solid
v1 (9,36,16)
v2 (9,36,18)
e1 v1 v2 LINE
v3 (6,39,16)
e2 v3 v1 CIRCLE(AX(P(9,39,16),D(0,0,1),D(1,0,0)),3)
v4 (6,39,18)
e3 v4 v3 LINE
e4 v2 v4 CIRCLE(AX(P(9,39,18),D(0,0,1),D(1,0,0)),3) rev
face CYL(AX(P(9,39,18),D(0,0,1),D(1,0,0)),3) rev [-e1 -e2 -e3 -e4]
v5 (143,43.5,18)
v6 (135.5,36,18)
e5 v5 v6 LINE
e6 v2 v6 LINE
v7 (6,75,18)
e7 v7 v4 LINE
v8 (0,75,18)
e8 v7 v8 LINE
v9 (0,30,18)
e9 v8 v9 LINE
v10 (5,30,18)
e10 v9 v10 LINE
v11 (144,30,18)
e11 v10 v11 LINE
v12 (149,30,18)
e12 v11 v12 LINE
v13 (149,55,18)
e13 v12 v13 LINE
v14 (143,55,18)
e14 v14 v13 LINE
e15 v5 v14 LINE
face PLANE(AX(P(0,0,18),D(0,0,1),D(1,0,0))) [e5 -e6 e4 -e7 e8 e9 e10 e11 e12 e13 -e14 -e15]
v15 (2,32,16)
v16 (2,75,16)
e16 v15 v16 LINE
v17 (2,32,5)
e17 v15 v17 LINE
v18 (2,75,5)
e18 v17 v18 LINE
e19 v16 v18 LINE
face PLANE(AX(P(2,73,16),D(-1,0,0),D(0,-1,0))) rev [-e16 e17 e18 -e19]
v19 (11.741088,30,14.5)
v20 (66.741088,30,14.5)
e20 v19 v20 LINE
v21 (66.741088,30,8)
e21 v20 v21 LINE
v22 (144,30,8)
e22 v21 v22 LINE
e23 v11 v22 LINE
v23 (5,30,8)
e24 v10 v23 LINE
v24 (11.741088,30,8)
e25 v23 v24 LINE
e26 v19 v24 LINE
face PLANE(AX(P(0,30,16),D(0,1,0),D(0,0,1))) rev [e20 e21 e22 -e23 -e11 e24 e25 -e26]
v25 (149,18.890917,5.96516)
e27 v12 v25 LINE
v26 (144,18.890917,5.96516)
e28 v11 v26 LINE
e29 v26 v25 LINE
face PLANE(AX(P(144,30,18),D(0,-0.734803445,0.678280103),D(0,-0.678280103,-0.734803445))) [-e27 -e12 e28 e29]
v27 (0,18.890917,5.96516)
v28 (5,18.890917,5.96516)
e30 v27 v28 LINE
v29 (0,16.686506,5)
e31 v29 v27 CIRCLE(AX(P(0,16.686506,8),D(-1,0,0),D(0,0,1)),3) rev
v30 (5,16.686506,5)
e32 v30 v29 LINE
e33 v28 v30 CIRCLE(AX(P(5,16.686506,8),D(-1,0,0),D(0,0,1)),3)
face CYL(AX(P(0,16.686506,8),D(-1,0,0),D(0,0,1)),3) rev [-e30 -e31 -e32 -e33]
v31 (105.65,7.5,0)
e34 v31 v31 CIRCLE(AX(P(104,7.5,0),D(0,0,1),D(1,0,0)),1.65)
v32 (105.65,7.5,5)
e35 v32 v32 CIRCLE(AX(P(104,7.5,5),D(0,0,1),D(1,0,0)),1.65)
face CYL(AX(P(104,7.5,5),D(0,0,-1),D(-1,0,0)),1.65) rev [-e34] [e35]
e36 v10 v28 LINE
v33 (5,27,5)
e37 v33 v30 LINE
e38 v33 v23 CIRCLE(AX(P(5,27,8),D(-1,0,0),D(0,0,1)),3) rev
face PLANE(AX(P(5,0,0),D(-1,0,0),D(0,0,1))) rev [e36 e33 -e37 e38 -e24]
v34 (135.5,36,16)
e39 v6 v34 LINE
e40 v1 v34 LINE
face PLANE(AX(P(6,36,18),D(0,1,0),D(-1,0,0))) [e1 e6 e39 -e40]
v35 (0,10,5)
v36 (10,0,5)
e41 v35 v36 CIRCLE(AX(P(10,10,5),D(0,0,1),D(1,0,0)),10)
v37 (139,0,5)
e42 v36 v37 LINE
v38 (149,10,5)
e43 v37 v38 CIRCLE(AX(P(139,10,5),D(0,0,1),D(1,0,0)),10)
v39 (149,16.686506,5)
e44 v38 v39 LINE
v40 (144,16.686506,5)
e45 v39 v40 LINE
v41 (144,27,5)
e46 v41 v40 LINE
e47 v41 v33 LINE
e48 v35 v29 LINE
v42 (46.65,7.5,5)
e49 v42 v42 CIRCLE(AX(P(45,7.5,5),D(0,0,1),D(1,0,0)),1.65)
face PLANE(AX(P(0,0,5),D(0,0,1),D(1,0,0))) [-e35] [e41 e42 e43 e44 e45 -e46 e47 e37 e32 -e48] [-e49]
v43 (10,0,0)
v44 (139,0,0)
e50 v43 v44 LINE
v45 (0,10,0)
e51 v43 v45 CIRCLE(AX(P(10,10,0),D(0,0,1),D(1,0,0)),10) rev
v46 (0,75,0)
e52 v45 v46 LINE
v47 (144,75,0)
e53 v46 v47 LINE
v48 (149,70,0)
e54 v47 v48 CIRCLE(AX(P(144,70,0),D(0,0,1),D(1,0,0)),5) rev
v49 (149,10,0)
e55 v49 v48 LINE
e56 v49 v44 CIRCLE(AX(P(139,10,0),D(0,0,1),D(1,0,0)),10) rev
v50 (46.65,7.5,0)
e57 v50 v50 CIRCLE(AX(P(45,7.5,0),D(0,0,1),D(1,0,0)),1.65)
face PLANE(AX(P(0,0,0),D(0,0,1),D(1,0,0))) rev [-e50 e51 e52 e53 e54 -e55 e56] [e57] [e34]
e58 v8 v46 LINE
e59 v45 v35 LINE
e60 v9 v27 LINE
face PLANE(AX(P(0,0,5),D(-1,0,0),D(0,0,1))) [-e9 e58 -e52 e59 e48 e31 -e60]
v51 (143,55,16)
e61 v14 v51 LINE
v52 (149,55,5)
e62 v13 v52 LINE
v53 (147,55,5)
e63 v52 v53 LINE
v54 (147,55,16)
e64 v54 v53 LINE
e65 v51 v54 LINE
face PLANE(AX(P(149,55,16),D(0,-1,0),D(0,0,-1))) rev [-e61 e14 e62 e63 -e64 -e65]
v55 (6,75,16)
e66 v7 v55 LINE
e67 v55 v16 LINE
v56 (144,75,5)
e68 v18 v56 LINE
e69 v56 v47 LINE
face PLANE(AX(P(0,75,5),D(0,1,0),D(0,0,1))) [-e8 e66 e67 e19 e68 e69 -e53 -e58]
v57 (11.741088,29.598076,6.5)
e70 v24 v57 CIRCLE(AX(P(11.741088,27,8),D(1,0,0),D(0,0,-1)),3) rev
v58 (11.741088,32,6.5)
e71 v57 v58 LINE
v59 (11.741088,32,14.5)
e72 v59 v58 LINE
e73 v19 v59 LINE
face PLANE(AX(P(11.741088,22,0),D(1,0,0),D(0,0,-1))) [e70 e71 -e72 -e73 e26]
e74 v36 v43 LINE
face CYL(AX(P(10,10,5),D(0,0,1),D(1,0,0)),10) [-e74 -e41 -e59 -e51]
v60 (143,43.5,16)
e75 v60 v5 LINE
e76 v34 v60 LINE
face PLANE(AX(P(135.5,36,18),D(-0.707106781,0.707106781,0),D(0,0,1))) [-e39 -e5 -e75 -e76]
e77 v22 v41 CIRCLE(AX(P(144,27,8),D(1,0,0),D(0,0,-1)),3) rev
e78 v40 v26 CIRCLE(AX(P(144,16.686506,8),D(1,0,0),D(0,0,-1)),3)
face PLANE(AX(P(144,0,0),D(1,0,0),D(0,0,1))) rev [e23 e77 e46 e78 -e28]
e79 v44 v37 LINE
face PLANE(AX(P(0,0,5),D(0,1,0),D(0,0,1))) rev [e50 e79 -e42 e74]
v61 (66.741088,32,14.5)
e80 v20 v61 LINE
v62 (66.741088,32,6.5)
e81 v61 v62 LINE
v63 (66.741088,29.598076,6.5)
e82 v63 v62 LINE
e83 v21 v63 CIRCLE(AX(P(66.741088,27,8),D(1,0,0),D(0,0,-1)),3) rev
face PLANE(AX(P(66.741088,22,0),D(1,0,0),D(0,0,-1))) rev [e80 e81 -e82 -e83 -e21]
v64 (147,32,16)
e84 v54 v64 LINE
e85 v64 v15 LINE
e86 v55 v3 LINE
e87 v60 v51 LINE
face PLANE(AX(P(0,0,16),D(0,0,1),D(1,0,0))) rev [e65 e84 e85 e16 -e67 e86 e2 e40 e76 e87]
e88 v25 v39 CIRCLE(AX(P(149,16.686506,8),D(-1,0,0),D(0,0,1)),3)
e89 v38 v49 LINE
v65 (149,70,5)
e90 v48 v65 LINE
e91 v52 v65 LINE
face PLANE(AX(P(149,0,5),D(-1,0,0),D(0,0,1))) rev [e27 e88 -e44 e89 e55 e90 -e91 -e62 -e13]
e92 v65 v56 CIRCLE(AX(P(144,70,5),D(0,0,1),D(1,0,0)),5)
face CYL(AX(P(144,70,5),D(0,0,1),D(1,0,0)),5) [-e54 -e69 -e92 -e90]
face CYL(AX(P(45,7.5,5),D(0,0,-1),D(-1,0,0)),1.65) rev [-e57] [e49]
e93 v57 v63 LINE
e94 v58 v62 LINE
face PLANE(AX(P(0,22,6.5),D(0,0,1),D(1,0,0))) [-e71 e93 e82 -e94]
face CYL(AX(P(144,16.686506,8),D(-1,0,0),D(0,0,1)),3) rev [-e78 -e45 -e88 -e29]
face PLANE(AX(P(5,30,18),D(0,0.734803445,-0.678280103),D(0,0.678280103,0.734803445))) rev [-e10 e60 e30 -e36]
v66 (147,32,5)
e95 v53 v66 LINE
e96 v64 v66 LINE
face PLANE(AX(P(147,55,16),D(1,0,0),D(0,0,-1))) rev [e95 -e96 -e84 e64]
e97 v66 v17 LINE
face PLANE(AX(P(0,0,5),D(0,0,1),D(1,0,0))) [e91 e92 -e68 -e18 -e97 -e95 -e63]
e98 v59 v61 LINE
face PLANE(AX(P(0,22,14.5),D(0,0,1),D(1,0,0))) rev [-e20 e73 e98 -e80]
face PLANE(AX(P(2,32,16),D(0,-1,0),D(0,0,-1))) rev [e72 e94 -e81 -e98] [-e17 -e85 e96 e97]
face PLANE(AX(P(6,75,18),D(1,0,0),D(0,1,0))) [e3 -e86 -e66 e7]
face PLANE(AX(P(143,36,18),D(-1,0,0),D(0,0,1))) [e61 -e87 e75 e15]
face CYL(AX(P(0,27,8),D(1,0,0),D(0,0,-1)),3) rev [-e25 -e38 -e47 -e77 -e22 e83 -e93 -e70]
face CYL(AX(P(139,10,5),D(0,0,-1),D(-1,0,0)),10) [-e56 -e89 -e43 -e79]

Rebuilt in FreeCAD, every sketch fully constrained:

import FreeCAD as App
import Part
import Sketcher
from FreeCAD import Vector
Q = App.Units.Quantity


def edges_at(feature, points):
    """Names of the edges that pass closest to the given points."""
    edges = feature.Shape.Edges
    near = lambda p: min(range(len(edges)), key=lambda i: edges[i].distToShape(Part.Vertex(*p))[0])
    return sorted({f"Edge{near(p) + 1}" for p in points})


def add_polygon(sketch, points):
    """Adds a closed chain of lines whose ends are joined by coincident constraints."""
    first, n = sketch.GeometryCount, len(points)
    for a, b in zip(points, points[1:] + points[:1]):
        sketch.addGeometry(Part.LineSegment(App.Vector(*a, 0), App.Vector(*b, 0)), False)
    for i in range(n):
        sketch.addConstraint(Sketcher.Constraint("Coincident", first + i, 2, first + (i + 1) % n, 1))

doc = App.newDocument("Part")
params = doc.addObject("Spreadsheet::Sheet", "Params")
for row, (alias, value) in enumerate([
    ("sketch1_diameter", "3.3 mm"),
    ("sketch1_width", "149 mm"),
    ("sketch1_height", "75 mm"),
    ("pad1_length", "5 mm"),
    ("fillet_radius", "10 mm"),
    ("sketch2_width", "2 mm"),
    ("sketch2_width2", "149 mm"),
    ("sketch2_height", "45 mm"),
    ("sketch2_height2", "25 mm"),
    ("sketch2_height3", "23 mm"),
    ("pad2_length", "11 mm"),
    ("sketch3_width", "6 mm"),
    ("sketch3_width2", "137 mm"),
    ("sketch3_height", "25 mm"),
    ("sketch3_height2", "19 mm"),
    ("sketch3_height3", "39 mm"),
    ("pad3_length", "2 mm"),
    ("chamfer_size", "7.5 mm"),
    ("sketch4_width", "12 mm"),
    ("sketch4_height", "13 mm"),
    ("pad4_length", "5 mm"),
    ("fillet2_radius", "3 mm"),
    ("sketch5_width", "55 mm"),
    ("sketch5_height", "8 mm"),
    ("pocket1_length", "10 mm"),
    ("fillet3_radius", "3 mm"),
    ("fillet4_radius", "5 mm"),
], start=1):
    params.set(f"A{row}", alias)
    params.set(f"B{row}", "=" + value)
    params.setAlias(f"B{row}", alias)

body = doc.addObject("PartDesign::Body", "Body")

# Sketch on XY plane
sketch1 = body.newObject("Sketcher::SketchObject", "Sketch")
sketch1.AttachmentSupport = (doc.getObject("XY_Plane"), [""])
sketch1.MapMode = "FlatFace"
add_polygon(sketch1, [(0, 75), (0, 0), (149, 0), (149, 75)])  # lines 0-3
sketch1.addGeometry(Part.Circle(Vector(45, 7.5, 0), Vector(0, 0, 1), 1.6), False)  # 4
sketch1.addGeometry(Part.Circle(Vector(104, 7.5, 0), Vector(0, 0, 1), 1.6), False)  # 5
sketch1.addConstraint(Sketcher.Constraint("Vertical", 0))
sketch1.addConstraint(Sketcher.Constraint("Horizontal", 1))
sketch1.addConstraint(Sketcher.Constraint("Vertical", 2))
sketch1.addConstraint(Sketcher.Constraint("Horizontal", 3))
sketch1.addConstraint(Sketcher.Constraint("Coincident", 0, 2, -1, 1))
sketch1.addConstraint(Sketcher.Constraint("Equal", 4, 5))
sketch1.addConstraint(Sketcher.Constraint("Horizontal", 4, 3, 5, 3))
sketch1.addConstraint(Sketcher.Constraint("Diameter", 4, Q("3.3 mm")))
sketch1.addConstraint(Sketcher.Constraint("DistanceX", 1, 1, 1, 2, Q("149 mm")))
sketch1.addConstraint(Sketcher.Constraint("DistanceY", 0, 2, 0, 1, Q("75 mm")))
sketch1.addConstraint(Sketcher.Constraint("DistanceX", -1, 1, 4, 3, Q("45 mm")))
sketch1.addConstraint(Sketcher.Constraint("DistanceX", -1, 1, 5, 3, Q("104 mm")))
sketch1.addConstraint(Sketcher.Constraint("DistanceY", -1, 1, 4, 3, Q("7.5 mm")))
sketch1.setExpression("Constraints[11]", "Params.sketch1_diameter")
sketch1.setExpression("Constraints[12]", "Params.sketch1_width")
sketch1.setExpression("Constraints[13]", "Params.sketch1_height")
pad1 = body.newObject("PartDesign::Pad", "Pad")
pad1.Profile = sketch1
pad1.setExpression("Length", "Params.pad1_length")
doc.recompute()

fillet = body.newObject("PartDesign::Fillet", "Fillet")
fillet.Base = (pad1, edges_at(pad1, [(149, 0, 2.5), (0, 0, 2.5)]))
fillet.setExpression("Radius", "Params.fillet_radius")

# Sketch on XY plane
sketch2 = body.newObject("Sketcher::SketchObject", "Sketch001")
sketch2.AttachmentSupport = (doc.getObject("XY_Plane"), [""])
sketch2.MapMode = "FlatFace"
sketch2.AttachmentOffset = App.Placement(Vector(0, 0, 5), App.Rotation())
add_polygon(sketch2, [(2, 75), (0, 75), (0, 30), (149, 30), (149, 55), (147, 55), (147, 32), (2, 32)])  # lines 0-7
sketch2.addConstraint(Sketcher.Constraint("Horizontal", 0))
sketch2.addConstraint(Sketcher.Constraint("Vertical", 1))
sketch2.addConstraint(Sketcher.Constraint("Horizontal", 2))
sketch2.addConstraint(Sketcher.Constraint("Vertical", 3))
sketch2.addConstraint(Sketcher.Constraint("Horizontal", 4))
sketch2.addConstraint(Sketcher.Constraint("Vertical", 5))
sketch2.addConstraint(Sketcher.Constraint("Horizontal", 6))
sketch2.addConstraint(Sketcher.Constraint("Vertical", 7))
sketch2.addConstraint(Sketcher.Constraint("PointOnObject", 0, 2, -2))
sketch2.addConstraint(Sketcher.Constraint("Equal", 0, 4))
sketch2.addConstraint(Sketcher.Constraint("DistanceX", 0, 2, 0, 1, Q("2 mm")))
sketch2.addConstraint(Sketcher.Constraint("DistanceX", 2, 1, 2, 2, Q("149 mm")))
sketch2.addConstraint(Sketcher.Constraint("DistanceY", 1, 2, 1, 1, Q("45 mm")))
sketch2.addConstraint(Sketcher.Constraint("DistanceY", 3, 1, 3, 2, Q("25 mm")))
sketch2.addConstraint(Sketcher.Constraint("DistanceY", 5, 2, 5, 1, Q("23 mm")))
sketch2.addConstraint(Sketcher.Constraint("DistanceY", -1, 1, 0, 2, Q("75 mm")))
sketch2.setExpression("Constraints[18]", "Params.sketch2_width")
sketch2.setExpression("Constraints[19]", "Params.sketch2_width2")
sketch2.setExpression("Constraints[20]", "Params.sketch2_height")
sketch2.setExpression("Constraints[21]", "Params.sketch2_height2")
sketch2.setExpression("Constraints[22]", "Params.sketch2_height3")
pad2 = body.newObject("PartDesign::Pad", "Pad001")
pad2.Profile = sketch2
pad2.setExpression("Length", "Params.pad2_length")

# Sketch on XY plane
sketch3 = body.newObject("Sketcher::SketchObject", "Sketch002")
sketch3.AttachmentSupport = (doc.getObject("XY_Plane"), [""])
sketch3.MapMode = "FlatFace"
sketch3.AttachmentOffset = App.Placement(Vector(0, 0, 16), App.Rotation())
add_polygon(sketch3, [(149, 30), (149, 55), (143, 55), (143, 36), (6, 36), (6, 75), (0, 75), (0, 30)])  # lines 0-7
sketch3.addConstraint(Sketcher.Constraint("Vertical", 0))
sketch3.addConstraint(Sketcher.Constraint("Horizontal", 1))
sketch3.addConstraint(Sketcher.Constraint("Vertical", 2))
sketch3.addConstraint(Sketcher.Constraint("Horizontal", 3))
sketch3.addConstraint(Sketcher.Constraint("Vertical", 4))
sketch3.addConstraint(Sketcher.Constraint("Horizontal", 5))
sketch3.addConstraint(Sketcher.Constraint("Vertical", 6))
sketch3.addConstraint(Sketcher.Constraint("Horizontal", 7))
sketch3.addConstraint(Sketcher.Constraint("PointOnObject", 5, 2, -2))
sketch3.addConstraint(Sketcher.Constraint("Equal", 1, 5))
sketch3.addConstraint(Sketcher.Constraint("DistanceX", 1, 2, 1, 1, Q("6 mm")))
sketch3.addConstraint(Sketcher.Constraint("DistanceX", 3, 2, 3, 1, Q("137 mm")))
sketch3.addConstraint(Sketcher.Constraint("DistanceY", 0, 1, 0, 2, Q("25 mm")))
sketch3.addConstraint(Sketcher.Constraint("DistanceY", 2, 2, 2, 1, Q("19 mm")))
sketch3.addConstraint(Sketcher.Constraint("DistanceY", 4, 1, 4, 2, Q("39 mm")))
sketch3.addConstraint(Sketcher.Constraint("DistanceY", -1, 1, 0, 2, Q("55 mm")))
sketch3.setExpression("Constraints[18]", "Params.sketch3_width")
sketch3.setExpression("Constraints[19]", "Params.sketch3_width2")
sketch3.setExpression("Constraints[20]", "Params.sketch3_height")
sketch3.setExpression("Constraints[21]", "Params.sketch3_height2")
sketch3.setExpression("Constraints[22]", "Params.sketch3_height3")
pad3 = body.newObject("PartDesign::Pad", "Pad002")
pad3.Profile = sketch3
pad3.setExpression("Length", "Params.pad3_length")
doc.recompute()

chamfer = body.newObject("PartDesign::Chamfer", "Chamfer")
chamfer.Base = (pad3, edges_at(pad3, [(143, 36, 17)]))
chamfer.setExpression("Size", "Params.chamfer_size")

# Sketch on YZ plane
sketch4 = body.newObject("Sketcher::SketchObject", "Sketch003")
sketch4.AttachmentSupport = (doc.getObject("YZ_Plane"), [""])
sketch4.MapMode = "FlatFace"
add_polygon(sketch4, [(18, 5), (30, 18), (30, 5)])  # lines 0-2
sketch4.addConstraint(Sketcher.Constraint("Vertical", 1))
sketch4.addConstraint(Sketcher.Constraint("Horizontal", 2))
sketch4.addConstraint(Sketcher.Constraint("DistanceX", 2, 2, 2, 1, Q("12 mm")))
sketch4.addConstraint(Sketcher.Constraint("DistanceY", 1, 2, 1, 1, Q("13 mm")))
sketch4.addConstraint(Sketcher.Constraint("DistanceX", -1, 1, 0, 2, Q("30 mm")))
sketch4.addConstraint(Sketcher.Constraint("DistanceY", -1, 1, 0, 2, Q("18 mm")))
sketch4.setExpression("Constraints[5]", "Params.sketch4_width")
sketch4.setExpression("Constraints[6]", "Params.sketch4_height")
pad4 = body.newObject("PartDesign::Pad", "Pad003")
pad4.Profile = sketch4
pad4.setExpression("Length", "Params.pad4_length")
doc.recompute()

datumplane = body.newObject("PartDesign::Plane", "DatumPlane")
datumplane.AttachmentSupport = (doc.getObject("YZ_Plane"), [""])
datumplane.MapMode = "FlatFace"
datumplane.AttachmentOffset = App.Placement(Vector(0, 0, 74.5), App.Rotation())
mirrored = body.newObject("PartDesign::Mirrored", "Mirrored")
mirrored.Originals = [pad4]
mirrored.MirrorPlane = (datumplane, [""])
body.Tip = mirrored
doc.recompute()

fillet2 = body.newObject("PartDesign::Fillet", "Fillet001")
fillet2.Base = (mirrored, edges_at(mirrored, [(146.5, 18, 5), (74.5, 30, 5), (2.5, 18, 5)]))
fillet2.setExpression("Radius", "Params.fillet2_radius")

# Sketch on XZ plane
sketch5 = body.newObject("Sketcher::SketchObject", "Sketch004")
sketch5.AttachmentSupport = (doc.getObject("XZ_Plane"), [""])
sketch5.MapMode = "FlatFace"
sketch5.AttachmentOffset = App.Placement(Vector(0, 0, -32), App.Rotation())
add_polygon(sketch5, [(12, 6), (12, 14), (67, 14), (67, 6)])  # lines 0-3
sketch5.addConstraint(Sketcher.Constraint("Vertical", 0))
sketch5.addConstraint(Sketcher.Constraint("Horizontal", 1))
sketch5.addConstraint(Sketcher.Constraint("Vertical", 2))
sketch5.addConstraint(Sketcher.Constraint("Horizontal", 3))
sketch5.addConstraint(Sketcher.Constraint("DistanceX", 1, 1, 1, 2, Q("55 mm")))
sketch5.addConstraint(Sketcher.Constraint("DistanceY", 0, 1, 0, 2, Q("8 mm")))
sketch5.addConstraint(Sketcher.Constraint("DistanceY", -1, 1, 0, 2, Q("14.5 mm")))
sketch5.addConstraint(Sketcher.Constraint("DistanceX", -1, 1, 0, 2, Q("11.741088 mm")))
sketch5.setExpression("Constraints[8]", "Params.sketch5_width")
sketch5.setExpression("Constraints[9]", "Params.sketch5_height")
pocket1 = body.newObject("PartDesign::Pocket", "Pocket")
pocket1.Profile = sketch5
pocket1.setExpression("Length", "Params.pocket1_length")
pocket1.Reversed = True
doc.recompute()

fillet3 = body.newObject("PartDesign::Fillet", "Fillet002")
fillet3.Base = (pocket1, edges_at(pocket1, [(6, 36, 17)]))
fillet3.setExpression("Radius", "Params.fillet3_radius")
doc.recompute()

fillet4 = body.newObject("PartDesign::Fillet", "Fillet003")
fillet4.Base = (fillet3, edges_at(fillet3, [(149, 75, 2.5)]))
fillet4.setExpression("Radius", "Params.fillet4_radius")

doc.recompute()
